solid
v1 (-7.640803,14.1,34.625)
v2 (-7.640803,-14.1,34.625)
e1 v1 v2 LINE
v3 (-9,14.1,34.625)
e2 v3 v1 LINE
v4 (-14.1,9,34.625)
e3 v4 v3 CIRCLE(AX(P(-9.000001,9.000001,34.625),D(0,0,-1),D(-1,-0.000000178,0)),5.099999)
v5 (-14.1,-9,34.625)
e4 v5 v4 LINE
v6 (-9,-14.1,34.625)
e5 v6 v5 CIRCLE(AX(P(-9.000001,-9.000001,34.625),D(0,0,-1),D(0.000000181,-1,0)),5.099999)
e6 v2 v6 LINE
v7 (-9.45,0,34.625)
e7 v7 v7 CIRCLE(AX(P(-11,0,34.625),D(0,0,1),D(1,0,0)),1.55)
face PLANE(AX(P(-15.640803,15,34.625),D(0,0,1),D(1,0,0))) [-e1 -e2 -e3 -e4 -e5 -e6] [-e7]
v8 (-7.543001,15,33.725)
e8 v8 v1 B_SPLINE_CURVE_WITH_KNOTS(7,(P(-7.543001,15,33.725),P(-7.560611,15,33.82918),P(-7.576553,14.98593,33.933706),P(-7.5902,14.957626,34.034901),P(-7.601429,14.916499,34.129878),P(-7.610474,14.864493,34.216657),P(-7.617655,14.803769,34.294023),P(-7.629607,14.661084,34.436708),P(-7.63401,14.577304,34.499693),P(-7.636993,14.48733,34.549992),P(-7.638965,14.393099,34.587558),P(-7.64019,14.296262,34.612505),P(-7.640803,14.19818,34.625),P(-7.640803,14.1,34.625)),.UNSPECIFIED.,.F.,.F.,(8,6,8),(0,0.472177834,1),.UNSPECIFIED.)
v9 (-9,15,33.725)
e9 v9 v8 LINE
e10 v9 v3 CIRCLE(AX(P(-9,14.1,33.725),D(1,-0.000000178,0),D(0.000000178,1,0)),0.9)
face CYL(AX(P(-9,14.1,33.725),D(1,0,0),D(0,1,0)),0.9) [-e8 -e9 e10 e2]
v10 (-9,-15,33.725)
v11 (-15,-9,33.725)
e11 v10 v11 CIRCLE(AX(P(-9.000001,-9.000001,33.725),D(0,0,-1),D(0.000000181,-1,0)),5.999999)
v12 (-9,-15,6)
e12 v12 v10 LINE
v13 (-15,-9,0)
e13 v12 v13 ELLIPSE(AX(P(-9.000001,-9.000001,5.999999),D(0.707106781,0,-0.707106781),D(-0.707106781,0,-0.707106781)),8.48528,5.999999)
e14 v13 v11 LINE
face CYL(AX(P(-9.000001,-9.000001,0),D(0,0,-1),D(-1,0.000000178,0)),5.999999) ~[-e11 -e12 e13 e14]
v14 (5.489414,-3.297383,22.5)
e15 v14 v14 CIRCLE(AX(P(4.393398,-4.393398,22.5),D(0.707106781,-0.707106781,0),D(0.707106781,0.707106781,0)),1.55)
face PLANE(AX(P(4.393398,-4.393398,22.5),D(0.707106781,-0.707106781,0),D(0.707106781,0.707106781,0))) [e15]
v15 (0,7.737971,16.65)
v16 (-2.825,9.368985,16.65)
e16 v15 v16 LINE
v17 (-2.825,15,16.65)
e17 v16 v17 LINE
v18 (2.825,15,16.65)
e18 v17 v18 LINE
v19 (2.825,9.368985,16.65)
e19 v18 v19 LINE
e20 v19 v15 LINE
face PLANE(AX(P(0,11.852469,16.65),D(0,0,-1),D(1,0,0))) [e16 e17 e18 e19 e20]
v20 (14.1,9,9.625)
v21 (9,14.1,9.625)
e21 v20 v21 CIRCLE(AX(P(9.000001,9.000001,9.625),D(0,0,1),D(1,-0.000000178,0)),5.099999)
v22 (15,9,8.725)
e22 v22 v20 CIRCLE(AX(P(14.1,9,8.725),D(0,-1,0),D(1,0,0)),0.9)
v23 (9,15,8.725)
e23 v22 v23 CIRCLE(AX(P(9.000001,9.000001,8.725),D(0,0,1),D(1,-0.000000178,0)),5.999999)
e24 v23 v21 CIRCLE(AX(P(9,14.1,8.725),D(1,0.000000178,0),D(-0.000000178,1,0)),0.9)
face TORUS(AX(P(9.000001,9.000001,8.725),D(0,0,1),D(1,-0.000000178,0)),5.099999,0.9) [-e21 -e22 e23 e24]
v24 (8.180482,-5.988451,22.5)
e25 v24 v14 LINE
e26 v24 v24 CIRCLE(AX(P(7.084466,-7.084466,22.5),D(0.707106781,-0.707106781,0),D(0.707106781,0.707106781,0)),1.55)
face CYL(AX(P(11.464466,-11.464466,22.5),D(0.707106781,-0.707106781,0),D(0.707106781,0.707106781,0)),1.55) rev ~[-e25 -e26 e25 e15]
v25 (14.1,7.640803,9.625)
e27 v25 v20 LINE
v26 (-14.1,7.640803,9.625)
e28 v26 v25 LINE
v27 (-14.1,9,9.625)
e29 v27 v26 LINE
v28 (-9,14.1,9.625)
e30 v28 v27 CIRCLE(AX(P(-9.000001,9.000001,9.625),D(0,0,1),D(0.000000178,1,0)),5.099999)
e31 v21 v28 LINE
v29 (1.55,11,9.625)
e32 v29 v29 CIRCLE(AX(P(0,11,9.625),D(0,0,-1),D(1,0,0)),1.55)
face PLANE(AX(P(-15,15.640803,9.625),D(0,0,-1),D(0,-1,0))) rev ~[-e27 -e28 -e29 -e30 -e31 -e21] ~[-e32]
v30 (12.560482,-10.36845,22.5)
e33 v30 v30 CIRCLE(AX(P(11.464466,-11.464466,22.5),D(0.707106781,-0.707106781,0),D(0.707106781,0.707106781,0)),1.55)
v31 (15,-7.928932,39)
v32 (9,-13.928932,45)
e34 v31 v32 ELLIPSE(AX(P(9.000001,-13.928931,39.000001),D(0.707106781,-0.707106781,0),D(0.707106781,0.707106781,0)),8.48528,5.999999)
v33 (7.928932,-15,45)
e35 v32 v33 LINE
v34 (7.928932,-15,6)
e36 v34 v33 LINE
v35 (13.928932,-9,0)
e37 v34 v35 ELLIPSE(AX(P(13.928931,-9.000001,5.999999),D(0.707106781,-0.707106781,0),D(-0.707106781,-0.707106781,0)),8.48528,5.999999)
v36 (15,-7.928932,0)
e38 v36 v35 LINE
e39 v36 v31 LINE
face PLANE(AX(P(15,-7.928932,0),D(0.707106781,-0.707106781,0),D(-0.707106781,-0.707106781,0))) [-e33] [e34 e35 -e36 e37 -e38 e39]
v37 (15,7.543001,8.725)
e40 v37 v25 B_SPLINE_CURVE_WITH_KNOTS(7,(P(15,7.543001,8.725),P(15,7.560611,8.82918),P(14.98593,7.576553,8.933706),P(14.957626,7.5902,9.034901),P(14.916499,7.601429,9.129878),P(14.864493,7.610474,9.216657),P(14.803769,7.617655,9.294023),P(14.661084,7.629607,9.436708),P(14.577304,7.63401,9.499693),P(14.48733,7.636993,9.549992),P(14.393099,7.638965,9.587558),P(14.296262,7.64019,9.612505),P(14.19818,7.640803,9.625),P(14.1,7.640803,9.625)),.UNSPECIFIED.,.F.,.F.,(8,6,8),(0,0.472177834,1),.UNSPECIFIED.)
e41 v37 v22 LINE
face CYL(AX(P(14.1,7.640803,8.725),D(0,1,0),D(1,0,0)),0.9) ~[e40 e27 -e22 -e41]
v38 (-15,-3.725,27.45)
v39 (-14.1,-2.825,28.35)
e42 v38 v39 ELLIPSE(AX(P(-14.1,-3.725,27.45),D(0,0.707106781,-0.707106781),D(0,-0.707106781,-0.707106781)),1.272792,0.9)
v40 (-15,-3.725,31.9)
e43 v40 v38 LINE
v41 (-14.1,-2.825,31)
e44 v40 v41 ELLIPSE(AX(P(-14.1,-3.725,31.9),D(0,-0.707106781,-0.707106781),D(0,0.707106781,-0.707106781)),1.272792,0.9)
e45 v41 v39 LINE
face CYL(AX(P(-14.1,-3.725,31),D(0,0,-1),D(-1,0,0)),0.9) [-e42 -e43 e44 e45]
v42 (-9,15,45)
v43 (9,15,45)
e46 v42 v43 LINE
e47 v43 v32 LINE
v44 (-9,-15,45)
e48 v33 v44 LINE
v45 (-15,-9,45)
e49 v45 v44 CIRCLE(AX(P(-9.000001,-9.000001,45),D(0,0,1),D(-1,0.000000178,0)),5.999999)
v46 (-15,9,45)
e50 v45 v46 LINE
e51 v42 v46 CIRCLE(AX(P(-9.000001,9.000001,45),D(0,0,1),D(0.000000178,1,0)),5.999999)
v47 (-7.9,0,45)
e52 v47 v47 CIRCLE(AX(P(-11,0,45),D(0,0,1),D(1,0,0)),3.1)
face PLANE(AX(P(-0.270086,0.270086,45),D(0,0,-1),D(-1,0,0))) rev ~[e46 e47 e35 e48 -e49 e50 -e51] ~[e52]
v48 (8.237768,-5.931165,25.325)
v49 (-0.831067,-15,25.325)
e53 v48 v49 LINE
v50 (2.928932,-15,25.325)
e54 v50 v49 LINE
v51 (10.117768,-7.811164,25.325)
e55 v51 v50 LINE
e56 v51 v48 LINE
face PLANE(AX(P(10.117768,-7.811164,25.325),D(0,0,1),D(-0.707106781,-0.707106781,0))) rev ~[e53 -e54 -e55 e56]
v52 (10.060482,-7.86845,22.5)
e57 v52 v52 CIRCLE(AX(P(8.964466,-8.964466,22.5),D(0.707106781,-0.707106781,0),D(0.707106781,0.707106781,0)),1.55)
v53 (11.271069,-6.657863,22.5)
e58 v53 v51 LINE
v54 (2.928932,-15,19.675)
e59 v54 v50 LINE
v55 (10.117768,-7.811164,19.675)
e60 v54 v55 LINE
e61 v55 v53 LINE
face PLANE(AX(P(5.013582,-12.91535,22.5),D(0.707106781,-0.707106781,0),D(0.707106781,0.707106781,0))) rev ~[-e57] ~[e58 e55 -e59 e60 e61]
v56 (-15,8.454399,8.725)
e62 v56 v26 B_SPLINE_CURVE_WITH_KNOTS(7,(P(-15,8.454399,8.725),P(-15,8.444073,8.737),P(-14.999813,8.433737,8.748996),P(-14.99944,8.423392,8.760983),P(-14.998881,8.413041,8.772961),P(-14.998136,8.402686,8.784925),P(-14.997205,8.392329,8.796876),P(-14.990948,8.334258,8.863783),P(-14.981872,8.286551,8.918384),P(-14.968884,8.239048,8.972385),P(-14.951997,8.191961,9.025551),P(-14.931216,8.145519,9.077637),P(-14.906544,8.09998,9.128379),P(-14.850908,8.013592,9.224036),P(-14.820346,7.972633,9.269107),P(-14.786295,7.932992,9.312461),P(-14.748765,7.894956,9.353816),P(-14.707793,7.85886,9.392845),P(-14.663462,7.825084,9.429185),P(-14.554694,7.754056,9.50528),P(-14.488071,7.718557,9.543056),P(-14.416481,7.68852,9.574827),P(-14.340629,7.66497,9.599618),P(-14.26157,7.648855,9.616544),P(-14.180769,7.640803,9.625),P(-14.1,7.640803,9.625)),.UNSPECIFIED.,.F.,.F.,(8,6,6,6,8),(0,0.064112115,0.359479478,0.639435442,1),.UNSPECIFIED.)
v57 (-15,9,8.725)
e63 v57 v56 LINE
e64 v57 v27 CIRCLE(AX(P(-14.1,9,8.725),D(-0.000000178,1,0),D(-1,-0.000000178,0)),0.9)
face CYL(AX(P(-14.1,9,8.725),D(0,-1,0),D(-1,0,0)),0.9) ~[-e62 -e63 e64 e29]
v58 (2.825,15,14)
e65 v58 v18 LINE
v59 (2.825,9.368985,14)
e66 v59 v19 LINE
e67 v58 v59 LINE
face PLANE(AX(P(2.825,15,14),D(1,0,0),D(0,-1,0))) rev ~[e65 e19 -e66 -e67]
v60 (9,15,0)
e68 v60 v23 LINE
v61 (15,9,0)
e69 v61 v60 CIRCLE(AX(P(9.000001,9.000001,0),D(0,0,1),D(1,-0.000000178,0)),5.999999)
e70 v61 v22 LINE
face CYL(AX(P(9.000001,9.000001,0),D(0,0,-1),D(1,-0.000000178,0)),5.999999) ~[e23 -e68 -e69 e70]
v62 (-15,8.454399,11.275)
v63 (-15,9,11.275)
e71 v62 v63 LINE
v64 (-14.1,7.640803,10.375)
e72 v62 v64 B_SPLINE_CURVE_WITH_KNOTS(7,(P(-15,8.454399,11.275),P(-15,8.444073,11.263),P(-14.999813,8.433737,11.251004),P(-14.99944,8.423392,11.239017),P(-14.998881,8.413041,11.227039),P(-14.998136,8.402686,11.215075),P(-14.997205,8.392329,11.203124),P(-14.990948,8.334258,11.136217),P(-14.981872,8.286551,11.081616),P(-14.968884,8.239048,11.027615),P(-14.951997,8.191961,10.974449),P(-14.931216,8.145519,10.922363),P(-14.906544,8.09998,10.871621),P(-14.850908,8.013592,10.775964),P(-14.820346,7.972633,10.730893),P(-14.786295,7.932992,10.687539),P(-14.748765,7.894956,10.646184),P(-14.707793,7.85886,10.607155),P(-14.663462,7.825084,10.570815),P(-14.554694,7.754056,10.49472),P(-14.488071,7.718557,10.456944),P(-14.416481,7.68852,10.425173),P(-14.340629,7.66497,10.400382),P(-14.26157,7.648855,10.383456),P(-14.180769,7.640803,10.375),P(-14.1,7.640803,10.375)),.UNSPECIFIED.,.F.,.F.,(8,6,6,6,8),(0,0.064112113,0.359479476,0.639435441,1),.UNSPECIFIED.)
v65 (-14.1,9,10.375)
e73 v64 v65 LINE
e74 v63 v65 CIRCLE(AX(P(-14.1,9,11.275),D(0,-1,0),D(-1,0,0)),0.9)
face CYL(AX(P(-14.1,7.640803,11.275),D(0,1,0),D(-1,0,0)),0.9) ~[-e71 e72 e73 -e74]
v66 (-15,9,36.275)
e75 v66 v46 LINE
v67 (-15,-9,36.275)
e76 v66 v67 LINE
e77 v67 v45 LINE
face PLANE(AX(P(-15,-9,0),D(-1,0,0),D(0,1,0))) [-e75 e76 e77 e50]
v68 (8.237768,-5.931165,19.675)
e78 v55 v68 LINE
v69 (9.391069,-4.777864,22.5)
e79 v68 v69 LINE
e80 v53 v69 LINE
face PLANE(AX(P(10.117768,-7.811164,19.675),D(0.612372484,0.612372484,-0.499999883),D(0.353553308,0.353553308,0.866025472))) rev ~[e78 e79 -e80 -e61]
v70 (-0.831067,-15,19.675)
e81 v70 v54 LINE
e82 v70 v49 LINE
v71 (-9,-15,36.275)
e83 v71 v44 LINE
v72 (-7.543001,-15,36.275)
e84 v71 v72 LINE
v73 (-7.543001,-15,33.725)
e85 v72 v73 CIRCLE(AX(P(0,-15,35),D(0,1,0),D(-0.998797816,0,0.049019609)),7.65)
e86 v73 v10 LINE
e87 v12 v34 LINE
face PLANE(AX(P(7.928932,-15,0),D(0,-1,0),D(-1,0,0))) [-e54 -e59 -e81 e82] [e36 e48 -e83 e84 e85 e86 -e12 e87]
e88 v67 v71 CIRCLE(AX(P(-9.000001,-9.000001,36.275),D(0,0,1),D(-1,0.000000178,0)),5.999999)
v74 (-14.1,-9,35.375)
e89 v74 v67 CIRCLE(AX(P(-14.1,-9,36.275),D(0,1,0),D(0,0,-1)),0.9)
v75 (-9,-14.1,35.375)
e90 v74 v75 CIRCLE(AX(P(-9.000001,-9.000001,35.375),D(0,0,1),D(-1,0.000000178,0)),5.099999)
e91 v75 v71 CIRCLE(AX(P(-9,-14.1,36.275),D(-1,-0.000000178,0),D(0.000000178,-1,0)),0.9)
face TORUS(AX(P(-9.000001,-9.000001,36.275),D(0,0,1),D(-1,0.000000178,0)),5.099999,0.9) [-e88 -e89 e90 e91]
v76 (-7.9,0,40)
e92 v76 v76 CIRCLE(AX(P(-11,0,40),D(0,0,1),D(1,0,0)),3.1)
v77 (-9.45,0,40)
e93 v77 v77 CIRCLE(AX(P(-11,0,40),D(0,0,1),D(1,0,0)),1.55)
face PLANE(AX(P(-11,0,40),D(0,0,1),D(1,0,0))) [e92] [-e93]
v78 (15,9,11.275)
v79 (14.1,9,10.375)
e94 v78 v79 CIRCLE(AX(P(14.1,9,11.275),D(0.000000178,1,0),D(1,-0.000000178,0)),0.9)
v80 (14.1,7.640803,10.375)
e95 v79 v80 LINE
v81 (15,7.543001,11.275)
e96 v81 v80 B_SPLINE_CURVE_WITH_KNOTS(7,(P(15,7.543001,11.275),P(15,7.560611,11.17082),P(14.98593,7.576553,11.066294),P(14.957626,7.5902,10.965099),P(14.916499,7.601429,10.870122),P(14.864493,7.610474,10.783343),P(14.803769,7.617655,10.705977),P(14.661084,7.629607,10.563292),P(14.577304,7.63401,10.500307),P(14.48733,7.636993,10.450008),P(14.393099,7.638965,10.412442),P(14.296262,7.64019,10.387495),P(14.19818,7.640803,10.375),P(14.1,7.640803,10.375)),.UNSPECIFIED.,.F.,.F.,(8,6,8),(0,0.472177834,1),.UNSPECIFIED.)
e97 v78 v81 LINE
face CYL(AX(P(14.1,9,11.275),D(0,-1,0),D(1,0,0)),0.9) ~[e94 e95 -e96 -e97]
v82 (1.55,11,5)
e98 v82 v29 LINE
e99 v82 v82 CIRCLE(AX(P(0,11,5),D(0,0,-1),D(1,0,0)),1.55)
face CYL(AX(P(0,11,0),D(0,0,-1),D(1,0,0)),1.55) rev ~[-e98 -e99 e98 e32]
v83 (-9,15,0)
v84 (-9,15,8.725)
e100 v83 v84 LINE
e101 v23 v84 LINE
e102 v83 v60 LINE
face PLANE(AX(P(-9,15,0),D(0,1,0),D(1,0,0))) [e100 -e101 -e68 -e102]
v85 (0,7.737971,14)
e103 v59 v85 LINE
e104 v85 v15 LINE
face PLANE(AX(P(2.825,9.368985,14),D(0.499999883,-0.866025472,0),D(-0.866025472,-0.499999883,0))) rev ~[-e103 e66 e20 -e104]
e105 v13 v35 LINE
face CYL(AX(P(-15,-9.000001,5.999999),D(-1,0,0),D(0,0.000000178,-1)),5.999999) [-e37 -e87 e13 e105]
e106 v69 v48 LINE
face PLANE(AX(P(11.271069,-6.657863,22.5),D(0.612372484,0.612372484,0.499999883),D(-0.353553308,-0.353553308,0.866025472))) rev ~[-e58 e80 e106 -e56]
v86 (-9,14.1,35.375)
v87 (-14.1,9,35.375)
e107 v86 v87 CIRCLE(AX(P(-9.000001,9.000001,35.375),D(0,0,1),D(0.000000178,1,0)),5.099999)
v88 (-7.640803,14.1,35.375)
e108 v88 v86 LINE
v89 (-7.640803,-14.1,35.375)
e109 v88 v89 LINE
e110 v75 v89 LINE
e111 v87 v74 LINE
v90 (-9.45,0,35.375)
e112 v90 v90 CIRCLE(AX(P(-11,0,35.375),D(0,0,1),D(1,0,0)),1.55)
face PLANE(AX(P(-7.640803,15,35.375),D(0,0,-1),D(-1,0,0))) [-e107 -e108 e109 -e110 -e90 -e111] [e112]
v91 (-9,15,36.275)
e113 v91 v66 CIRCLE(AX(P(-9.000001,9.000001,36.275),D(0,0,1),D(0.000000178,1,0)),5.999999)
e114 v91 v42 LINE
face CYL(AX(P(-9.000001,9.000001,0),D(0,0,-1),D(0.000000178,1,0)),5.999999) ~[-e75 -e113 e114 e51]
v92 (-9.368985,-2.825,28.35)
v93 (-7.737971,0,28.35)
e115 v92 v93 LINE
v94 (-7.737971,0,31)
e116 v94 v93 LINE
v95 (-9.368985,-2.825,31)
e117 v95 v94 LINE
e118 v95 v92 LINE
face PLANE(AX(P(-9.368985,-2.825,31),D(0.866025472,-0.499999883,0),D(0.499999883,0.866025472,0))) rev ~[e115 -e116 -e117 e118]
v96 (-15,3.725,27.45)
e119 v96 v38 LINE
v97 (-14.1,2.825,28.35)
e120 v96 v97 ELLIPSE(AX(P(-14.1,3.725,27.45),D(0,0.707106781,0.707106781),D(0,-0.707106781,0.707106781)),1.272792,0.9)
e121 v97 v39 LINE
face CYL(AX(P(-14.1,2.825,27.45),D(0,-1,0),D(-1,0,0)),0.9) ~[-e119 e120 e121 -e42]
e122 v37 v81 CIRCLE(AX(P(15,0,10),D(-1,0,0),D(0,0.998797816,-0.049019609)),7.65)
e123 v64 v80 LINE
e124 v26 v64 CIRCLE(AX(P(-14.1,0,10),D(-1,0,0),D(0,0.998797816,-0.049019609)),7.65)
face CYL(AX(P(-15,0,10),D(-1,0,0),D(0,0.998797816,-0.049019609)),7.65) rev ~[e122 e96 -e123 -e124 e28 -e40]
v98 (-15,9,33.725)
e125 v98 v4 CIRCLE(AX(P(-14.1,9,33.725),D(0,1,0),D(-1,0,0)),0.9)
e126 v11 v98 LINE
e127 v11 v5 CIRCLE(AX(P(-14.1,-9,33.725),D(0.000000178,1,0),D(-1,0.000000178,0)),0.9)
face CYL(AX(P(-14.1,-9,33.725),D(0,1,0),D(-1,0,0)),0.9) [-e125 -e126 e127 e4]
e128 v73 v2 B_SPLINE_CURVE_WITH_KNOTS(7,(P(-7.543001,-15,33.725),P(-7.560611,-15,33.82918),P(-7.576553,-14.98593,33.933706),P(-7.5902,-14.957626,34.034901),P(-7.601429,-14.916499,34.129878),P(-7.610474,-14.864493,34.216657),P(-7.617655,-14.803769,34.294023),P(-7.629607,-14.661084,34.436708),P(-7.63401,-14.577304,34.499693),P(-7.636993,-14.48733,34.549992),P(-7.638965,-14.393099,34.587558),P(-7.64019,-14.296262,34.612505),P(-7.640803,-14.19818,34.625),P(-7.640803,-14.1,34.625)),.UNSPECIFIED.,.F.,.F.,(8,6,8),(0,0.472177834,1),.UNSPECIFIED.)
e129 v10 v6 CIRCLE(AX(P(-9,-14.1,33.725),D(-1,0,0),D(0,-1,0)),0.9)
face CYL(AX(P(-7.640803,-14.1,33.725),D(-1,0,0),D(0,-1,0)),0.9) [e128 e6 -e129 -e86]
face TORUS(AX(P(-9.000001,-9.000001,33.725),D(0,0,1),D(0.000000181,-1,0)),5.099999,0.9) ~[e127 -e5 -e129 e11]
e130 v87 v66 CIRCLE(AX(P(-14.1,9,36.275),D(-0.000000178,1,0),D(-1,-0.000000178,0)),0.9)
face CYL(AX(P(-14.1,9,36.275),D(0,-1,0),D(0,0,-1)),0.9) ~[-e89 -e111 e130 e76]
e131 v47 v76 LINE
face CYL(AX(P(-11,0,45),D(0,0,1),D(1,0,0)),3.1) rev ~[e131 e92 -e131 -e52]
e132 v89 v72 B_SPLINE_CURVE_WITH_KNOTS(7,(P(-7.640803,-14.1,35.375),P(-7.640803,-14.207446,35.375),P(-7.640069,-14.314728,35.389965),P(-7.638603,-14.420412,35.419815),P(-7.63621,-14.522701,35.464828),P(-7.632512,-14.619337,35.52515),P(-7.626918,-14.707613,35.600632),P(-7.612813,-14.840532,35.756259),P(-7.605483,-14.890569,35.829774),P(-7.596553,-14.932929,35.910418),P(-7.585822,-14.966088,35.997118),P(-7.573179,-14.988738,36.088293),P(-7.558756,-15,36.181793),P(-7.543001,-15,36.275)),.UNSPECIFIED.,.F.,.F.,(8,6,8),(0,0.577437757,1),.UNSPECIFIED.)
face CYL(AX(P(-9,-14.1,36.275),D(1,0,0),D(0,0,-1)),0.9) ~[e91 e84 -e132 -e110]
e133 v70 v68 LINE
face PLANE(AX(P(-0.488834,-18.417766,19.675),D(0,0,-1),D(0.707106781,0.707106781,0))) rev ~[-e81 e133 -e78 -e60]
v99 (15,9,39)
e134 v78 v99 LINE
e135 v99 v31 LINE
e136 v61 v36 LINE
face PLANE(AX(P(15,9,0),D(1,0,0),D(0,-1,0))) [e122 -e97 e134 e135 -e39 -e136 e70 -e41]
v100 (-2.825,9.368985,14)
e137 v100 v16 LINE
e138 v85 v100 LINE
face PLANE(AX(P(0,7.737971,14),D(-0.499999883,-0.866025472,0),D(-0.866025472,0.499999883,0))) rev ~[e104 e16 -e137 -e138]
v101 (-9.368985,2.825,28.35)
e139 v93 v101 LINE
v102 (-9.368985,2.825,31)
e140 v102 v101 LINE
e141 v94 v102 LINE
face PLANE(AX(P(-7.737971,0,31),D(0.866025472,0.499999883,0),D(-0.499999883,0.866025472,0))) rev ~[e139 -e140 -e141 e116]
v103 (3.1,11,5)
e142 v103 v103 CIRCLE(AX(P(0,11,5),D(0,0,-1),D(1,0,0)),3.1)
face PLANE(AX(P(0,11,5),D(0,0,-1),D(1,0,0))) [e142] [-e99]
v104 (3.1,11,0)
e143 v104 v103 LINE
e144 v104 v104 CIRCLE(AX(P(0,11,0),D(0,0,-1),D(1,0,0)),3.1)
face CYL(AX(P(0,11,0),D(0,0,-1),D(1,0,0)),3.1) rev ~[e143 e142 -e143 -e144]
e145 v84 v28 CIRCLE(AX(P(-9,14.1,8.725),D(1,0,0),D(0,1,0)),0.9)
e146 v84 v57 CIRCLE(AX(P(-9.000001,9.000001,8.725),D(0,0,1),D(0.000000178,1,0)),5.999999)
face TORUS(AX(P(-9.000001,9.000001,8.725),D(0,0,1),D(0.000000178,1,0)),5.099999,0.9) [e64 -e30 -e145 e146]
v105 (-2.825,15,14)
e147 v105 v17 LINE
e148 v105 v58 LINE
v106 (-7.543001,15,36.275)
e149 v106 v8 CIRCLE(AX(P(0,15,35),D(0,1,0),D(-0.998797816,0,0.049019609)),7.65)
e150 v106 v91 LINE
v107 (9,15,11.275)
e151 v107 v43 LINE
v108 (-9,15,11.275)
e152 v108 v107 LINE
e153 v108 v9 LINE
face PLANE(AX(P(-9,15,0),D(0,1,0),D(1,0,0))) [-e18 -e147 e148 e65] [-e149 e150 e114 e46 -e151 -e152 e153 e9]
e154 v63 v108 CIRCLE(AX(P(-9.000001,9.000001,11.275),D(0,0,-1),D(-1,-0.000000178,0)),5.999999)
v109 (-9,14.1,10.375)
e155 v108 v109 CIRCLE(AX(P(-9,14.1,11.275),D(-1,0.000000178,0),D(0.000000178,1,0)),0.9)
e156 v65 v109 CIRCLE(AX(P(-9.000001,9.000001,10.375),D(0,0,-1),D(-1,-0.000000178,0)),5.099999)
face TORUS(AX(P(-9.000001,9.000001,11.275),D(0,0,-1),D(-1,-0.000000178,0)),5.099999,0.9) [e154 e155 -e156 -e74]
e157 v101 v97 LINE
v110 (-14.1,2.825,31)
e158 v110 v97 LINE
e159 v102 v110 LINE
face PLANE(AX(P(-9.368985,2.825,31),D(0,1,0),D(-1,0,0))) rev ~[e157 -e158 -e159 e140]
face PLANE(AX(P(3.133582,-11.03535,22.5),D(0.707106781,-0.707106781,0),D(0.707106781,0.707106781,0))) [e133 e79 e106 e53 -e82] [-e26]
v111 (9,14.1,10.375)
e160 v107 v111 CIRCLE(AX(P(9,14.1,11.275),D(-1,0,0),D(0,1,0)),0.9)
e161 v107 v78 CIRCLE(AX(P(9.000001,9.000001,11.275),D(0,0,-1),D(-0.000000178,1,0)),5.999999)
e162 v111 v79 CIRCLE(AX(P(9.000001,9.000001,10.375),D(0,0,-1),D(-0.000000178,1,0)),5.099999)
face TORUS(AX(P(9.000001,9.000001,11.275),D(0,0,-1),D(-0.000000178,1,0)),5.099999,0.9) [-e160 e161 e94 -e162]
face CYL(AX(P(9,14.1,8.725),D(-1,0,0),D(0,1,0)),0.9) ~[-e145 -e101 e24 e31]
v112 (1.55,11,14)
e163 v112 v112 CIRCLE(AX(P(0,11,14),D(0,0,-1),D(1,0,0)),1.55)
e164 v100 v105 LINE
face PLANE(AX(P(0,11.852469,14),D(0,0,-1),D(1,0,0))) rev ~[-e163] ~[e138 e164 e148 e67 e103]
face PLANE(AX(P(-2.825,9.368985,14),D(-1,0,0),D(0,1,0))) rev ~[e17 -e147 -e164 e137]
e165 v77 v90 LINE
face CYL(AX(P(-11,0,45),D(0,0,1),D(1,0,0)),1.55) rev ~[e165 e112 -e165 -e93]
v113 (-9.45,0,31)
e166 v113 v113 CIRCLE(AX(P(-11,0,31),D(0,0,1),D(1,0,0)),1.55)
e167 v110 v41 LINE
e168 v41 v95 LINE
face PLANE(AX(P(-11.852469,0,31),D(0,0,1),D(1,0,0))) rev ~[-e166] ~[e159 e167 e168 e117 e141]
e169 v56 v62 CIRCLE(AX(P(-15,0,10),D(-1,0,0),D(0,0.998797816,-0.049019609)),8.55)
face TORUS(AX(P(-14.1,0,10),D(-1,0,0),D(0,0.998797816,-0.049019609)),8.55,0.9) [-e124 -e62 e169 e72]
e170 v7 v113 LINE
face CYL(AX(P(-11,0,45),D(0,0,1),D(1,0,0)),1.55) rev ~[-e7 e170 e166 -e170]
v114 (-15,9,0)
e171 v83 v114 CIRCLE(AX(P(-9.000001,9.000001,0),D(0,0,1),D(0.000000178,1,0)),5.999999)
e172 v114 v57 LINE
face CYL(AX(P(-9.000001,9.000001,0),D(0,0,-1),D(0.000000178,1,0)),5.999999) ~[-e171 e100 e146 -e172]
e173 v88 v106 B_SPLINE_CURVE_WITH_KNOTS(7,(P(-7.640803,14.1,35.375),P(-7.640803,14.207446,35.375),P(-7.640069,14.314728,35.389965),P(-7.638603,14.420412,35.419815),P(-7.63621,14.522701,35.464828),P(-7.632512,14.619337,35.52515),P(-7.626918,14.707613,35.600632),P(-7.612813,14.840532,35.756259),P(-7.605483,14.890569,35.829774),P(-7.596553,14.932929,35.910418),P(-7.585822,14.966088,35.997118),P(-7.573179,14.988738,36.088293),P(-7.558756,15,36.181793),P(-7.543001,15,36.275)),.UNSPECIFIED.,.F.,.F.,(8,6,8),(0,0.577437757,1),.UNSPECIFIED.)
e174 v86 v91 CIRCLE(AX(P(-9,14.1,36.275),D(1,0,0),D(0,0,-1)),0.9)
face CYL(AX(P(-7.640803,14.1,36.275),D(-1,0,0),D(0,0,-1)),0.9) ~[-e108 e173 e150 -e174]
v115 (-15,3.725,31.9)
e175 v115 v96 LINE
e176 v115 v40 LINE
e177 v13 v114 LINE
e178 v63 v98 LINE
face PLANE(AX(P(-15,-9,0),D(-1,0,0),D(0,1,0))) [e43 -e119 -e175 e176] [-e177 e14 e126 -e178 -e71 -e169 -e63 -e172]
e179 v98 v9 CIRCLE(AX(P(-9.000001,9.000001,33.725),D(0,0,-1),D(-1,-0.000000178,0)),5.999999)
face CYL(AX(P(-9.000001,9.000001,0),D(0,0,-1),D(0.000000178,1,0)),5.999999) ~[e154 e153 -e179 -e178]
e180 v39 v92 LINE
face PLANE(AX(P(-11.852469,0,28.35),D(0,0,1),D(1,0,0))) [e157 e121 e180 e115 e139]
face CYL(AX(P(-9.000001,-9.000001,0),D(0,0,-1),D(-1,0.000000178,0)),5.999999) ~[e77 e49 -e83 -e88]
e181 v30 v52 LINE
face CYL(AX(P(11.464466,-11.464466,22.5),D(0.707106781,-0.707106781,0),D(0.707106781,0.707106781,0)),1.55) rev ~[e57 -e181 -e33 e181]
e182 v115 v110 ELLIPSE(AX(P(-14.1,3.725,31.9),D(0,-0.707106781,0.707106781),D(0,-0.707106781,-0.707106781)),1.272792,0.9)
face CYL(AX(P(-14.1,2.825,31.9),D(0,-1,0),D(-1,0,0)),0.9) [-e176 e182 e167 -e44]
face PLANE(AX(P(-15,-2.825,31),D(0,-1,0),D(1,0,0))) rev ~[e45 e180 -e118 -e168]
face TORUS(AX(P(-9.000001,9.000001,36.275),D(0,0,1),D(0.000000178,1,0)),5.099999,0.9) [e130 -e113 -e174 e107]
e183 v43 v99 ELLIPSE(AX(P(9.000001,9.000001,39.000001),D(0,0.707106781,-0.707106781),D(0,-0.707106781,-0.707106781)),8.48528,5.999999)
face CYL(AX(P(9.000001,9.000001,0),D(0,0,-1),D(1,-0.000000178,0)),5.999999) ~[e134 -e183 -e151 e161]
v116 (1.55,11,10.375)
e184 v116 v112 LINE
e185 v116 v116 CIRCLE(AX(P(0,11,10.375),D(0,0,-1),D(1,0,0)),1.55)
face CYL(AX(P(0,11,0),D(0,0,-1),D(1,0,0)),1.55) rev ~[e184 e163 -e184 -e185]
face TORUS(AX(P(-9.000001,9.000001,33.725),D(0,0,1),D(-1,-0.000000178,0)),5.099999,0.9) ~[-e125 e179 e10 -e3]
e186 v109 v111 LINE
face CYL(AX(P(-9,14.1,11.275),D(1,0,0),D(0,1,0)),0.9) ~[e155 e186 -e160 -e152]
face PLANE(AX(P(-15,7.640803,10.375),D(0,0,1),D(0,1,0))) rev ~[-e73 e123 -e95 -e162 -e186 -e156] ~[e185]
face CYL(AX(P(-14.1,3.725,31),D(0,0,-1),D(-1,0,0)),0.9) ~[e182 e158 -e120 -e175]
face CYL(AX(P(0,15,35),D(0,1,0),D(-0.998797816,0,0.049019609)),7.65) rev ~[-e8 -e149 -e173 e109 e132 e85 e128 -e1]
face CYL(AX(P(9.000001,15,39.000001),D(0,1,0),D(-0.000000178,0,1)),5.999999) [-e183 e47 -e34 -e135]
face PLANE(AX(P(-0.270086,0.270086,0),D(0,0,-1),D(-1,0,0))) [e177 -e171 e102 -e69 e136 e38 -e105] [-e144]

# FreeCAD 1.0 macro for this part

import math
import FreeCAD as App
import Part
import Sketcher
from FreeCAD import Vector
Q = App.Units.Quantity


def edges_at(feature, points):
    """Names of the edges that pass closest to the given points."""
    edges = feature.Shape.Edges
    near = lambda p: min(range(len(edges)), key=lambda i: edges[i].distToShape(Part.Vertex(*p))[0])
    return sorted({f"Edge{near(p) + 1}" for p in points})

doc = App.newDocument("Part")
params = doc.addObject("Spreadsheet::Sheet", "Params")
for row, (alias, value) in enumerate([
    ("sketch1_width", "15 mm"),
    ("sketch1_height", "5.65 mm"),
    ("pad1_length", "2.658721 mm"),
    ("sketch2_width", "5.65 mm"),
    ("pad2_length", "2.65 mm"),
    ("sketch3_height", "5.65 mm"),
    ("pad3_length", "2.65 mm"),
    ("sketch4_radius", "5.999999 mm"),
    ("sketch4_width", "18 mm"),
    ("sketch4_length", "10 mm"),
    ("pad4_length", "45 mm"),
    ("sketch5_radius", "5.999999 mm"),
    ("sketch5_width", "8 mm"),
    ("sketch5_radius2", "7.65 mm"),
    ("sketch5_height", "0.75 mm"),
    ("sketch6_radius", "5.999999 mm"),
    ("sketch6_width", "8 mm"),
    ("sketch6_radius2", "7.65 mm"),
    ("sketch6_height", "0.75 mm"),
    ("sketch7_diameter", "3.1 mm"),
    ("pocket3_length", "16 mm"),
    ("sketch8_diameter", "6.2 mm"),
    ("pocket4_length", "5 mm"),
    ("sketch9_diameter", "3.1 mm"),
    ("pocket5_length", "16 mm"),
    ("sketch10_diameter", "6.2 mm"),
    ("pocket6_length", "5 mm"),
    ("sketch11_diameter", "3.1 mm"),
    ("pocket7_length", "10 mm"),
    ("fillet_radius", "0.9 mm"),
], start=1):
    params.set(f"A{row}", alias)
    params.set(f"B{row}", "=" + value)
    params.setAlias(f"B{row}", alias)

body = doc.addObject("PartDesign::Body", "Body")

sketch1 = body.newObject("Sketcher::SketchObject", "Sketch")
sketch1.AttachmentSupport = (doc.getObject("XY_Plane"), [""])
sketch1.MapMode = "FlatFace"
sketch1.addGeometry(Part.LineSegment(Vector(3.3, 22.5, 0), Vector(1.6, 25.3, 0)), False)
sketch1.addGeometry(Part.LineSegment(Vector(1.6, 25.3, 0), Vector(-13.4, 25.3, 0)), False)
sketch1.addGeometry(Part.LineSegment(Vector(-13.4, 25.3, 0), Vector(-13.4, 19.7, 0)), False)
sketch1.addGeometry(Part.LineSegment(Vector(-13.4, 19.7, 0), Vector(1.6, 19.7, 0)), False)
sketch1.addGeometry(Part.LineSegment(Vector(1.6, 19.7, 0), Vector(3.3, 22.5, 0)), False)
sketch1.addConstraint(Sketcher.Constraint("Coincident", 0, 2, 1, 1))
sketch1.addConstraint(Sketcher.Constraint("Coincident", 1, 2, 2, 1))
sketch1.addConstraint(Sketcher.Constraint("Coincident", 2, 2, 3, 1))
sketch1.addConstraint(Sketcher.Constraint("Coincident", 3, 2, 4, 1))
sketch1.addConstraint(Sketcher.Constraint("Coincident", 4, 2, 0, 1))
sketch1.addConstraint(Sketcher.Constraint("Horizontal", 1))
sketch1.addConstraint(Sketcher.Constraint("Vertical", 2))
sketch1.addConstraint(Sketcher.Constraint("Horizontal", 3))
sketch1.addConstraint(Sketcher.Constraint("Vertical", 0, 2, 3, 2))
sketch1.addConstraint(Sketcher.Constraint("Equal", 0, 4))
sketch1.addConstraint(Sketcher.Constraint("DistanceX", 1, 2, 1, 1, Q("15 mm")))
sketch1.addConstraint(Sketcher.Constraint("Angle", 0, Q("119.999992 deg")))
sketch1.addConstraint(Sketcher.Constraint("DistanceY", 2, 2, 2, 1, Q("5.65 mm")))
sketch1.addConstraint(Sketcher.Constraint("DistanceY", -1, 1, 4, 2, Q("22.5 mm")))
sketch1.addConstraint(Sketcher.Constraint("DistanceX", -1, 1, 4, 2, Q("3.262029 mm")))
sketch1.setExpression("Constraints[10]", "Params.sketch1_width")
sketch1.setExpression("Constraints[12]", "Params.sketch1_height")
pad1 = body.newObject("PartDesign::Pad", "Pad")
pad1.Profile = sketch1
pad1.setExpression("Length", "Params.pad1_length")
pad1.Reversed = True
body2 = doc.addObject("PartDesign::Body", "Body001")
doc.recompute()

body.Placement = App.Placement(Vector(0, 0, 0), App.Rotation(Vector(1, 0, 0), 90))
boolean = body2.newObject("PartDesign::Boolean", "Boolean")
boolean.Type = "Fuse"
boolean.addObjects([body])
body3 = doc.addObject("PartDesign::Body", "Body002")
doc.recompute()

body2.Placement = App.Placement(Vector(11.464466, -11.464466, 0), App.Rotation(Vector(0, 0, 1), 45))
boolean2 = body3.newObject("PartDesign::Boolean", "Boolean001")
boolean2.Type = "Fuse"
boolean2.addObjects([body2])
body4 = doc.addObject("PartDesign::Body", "Body003")
doc.recompute()

body3.Placement = App.Placement(Vector(-2.5, 2.5, 0), App.Rotation(Vector(0, 0, 1), 0))
boolean3 = body4.newObject("PartDesign::Boolean", "Boolean002")
boolean3.Type = "Fuse"
boolean3.addObjects([body3])
body5 = doc.addObject("PartDesign::Body", "Body004")

sketch2 = body5.newObject("Sketcher::SketchObject", "Sketch001")
sketch2.AttachmentSupport = (doc.getObject("XY_Plane004"), [""])
sketch2.MapMode = "FlatFace"
sketch2.addGeometry(Part.LineSegment(Vector(0, 7.7, 0), Vector(-2.8, 9.4, 0)), False)
sketch2.addGeometry(Part.LineSegment(Vector(-2.8, 9.4, 0), Vector(-2.8, 15, 0)), False)
sketch2.addGeometry(Part.LineSegment(Vector(-2.8, 15, 0), Vector(2.8, 15, 0)), False)
sketch2.addGeometry(Part.LineSegment(Vector(2.8, 15, 0), Vector(2.8, 9.4, 0)), False)
sketch2.addGeometry(Part.LineSegment(Vector(2.8, 9.4, 0), Vector(0, 7.7, 0)), False)
sketch2.addConstraint(Sketcher.Constraint("Coincident", 0, 2, 1, 1))
sketch2.addConstraint(Sketcher.Constraint("Coincident", 1, 2, 2, 1))
sketch2.addConstraint(Sketcher.Constraint("Coincident", 2, 2, 3, 1))
sketch2.addConstraint(Sketcher.Constraint("Coincident", 3, 2, 4, 1))
sketch2.addConstraint(Sketcher.Constraint("Coincident", 4, 2, 0, 1))
sketch2.addConstraint(Sketcher.Constraint("Vertical", 1))
sketch2.addConstraint(Sketcher.Constraint("Horizontal", 2))
sketch2.addConstraint(Sketcher.Constraint("Vertical", 3))
sketch2.addConstraint(Sketcher.Constraint("Symmetric", 0, 2, 3, 2, -2))
sketch2.addConstraint(Sketcher.Constraint("PointOnObject", 4, 2, -2))
sketch2.addConstraint(Sketcher.Constraint("Angle", 0, Q("150.000008 deg")))
sketch2.addConstraint(Sketcher.Constraint("DistanceY", -1, 1, 1, 2, Q("15 mm")))
sketch2.addConstraint(Sketcher.Constraint("DistanceX", 2, 1, 2, 2, Q("5.65 mm")))
sketch2.addConstraint(Sketcher.Constraint("DistanceY", 1, 1, 1, 2, Q("5.631015 mm")))
sketch2.setExpression("Constraints[12]", "Params.sketch2_width")
pad2 = body5.newObject("PartDesign::Pad", "Pad001")
pad2.Profile = sketch2
pad2.setExpression("Length", "Params.pad2_length")
body6 = doc.addObject("PartDesign::Body", "Body005")
doc.recompute()

body5.Placement = App.Placement(Vector(0, 0, 14), App.Rotation(Vector(0, 0, 1), 0))
boolean4 = body6.newObject("PartDesign::Boolean", "Boolean003")
boolean4.Type = "Fuse"
boolean4.addObjects([body5])
body7 = doc.addObject("PartDesign::Body", "Body006")

sketch3 = body7.newObject("Sketcher::SketchObject", "Sketch002")
sketch3.AttachmentSupport = (doc.getObject("XY_Plane006"), [""])
sketch3.MapMode = "FlatFace"
sketch3.AttachmentOffset = App.Placement(Vector(0, 0, 45), App.Rotation())
sketch3.addGeometry(Part.LineSegment(Vector(-7.7, 0, 0), Vector(-9.4, 2.8, 0)), False)
sketch3.addGeometry(Part.LineSegment(Vector(-9.4, 2.8, 0), Vector(-15, 2.8, 0)), False)
sketch3.addGeometry(Part.LineSegment(Vector(-15, 2.8, 0), Vector(-15, -2.8, 0)), False)
sketch3.addGeometry(Part.LineSegment(Vector(-15, -2.8, 0), Vector(-9.4, -2.8, 0)), False)
sketch3.addGeometry(Part.LineSegment(Vector(-9.4, -2.8, 0), Vector(-7.7, 0, 0)), False)
sketch3.addConstraint(Sketcher.Constraint("Coincident", 0, 2, 1, 1))
sketch3.addConstraint(Sketcher.Constraint("Coincident", 1, 2, 2, 1))
sketch3.addConstraint(Sketcher.Constraint("Coincident", 2, 2, 3, 1))
sketch3.addConstraint(Sketcher.Constraint("Coincident", 3, 2, 4, 1))
sketch3.addConstraint(Sketcher.Constraint("Coincident", 4, 2, 0, 1))
sketch3.addConstraint(Sketcher.Constraint("Horizontal", 1))
sketch3.addConstraint(Sketcher.Constraint("Vertical", 2))
sketch3.addConstraint(Sketcher.Constraint("Horizontal", 3))
sketch3.addConstraint(Sketcher.Constraint("Symmetric", 0, 2, 3, 2, -1))
sketch3.addConstraint(Sketcher.Constraint("PointOnObject", 4, 2, -1))
sketch3.addConstraint(Sketcher.Constraint("Angle", 0, Q("119.999992 deg")))
sketch3.addConstraint(Sketcher.Constraint("DistanceX", 1, 2, -1, 1, Q("15 mm")))
sketch3.addConstraint(Sketcher.Constraint("DistanceY", 2, 2, 2, 1, Q("5.65 mm")))
sketch3.addConstraint(Sketcher.Constraint("DistanceX", 1, 2, 1, 1, Q("5.631015 mm")))
sketch3.setExpression("Constraints[12]", "Params.sketch3_height")
pad3 = body7.newObject("PartDesign::Pad", "Pad002")
pad3.Profile = sketch3
pad3.setExpression("Length", "Params.pad3_length")
pad3.Reversed = True
body8 = doc.addObject("PartDesign::Body", "Body007")
doc.recompute()

body7.Placement = App.Placement(Vector(0, 0, -14), App.Rotation(Vector(0, 0, 1), 0))
boolean5 = body8.newObject("PartDesign::Boolean", "Boolean004")
boolean5.Type = "Fuse"
boolean5.addObjects([body7])
body9 = doc.addObject("PartDesign::Body", "Body008")

sketch4 = body9.newObject("Sketcher::SketchObject", "Sketch003")
sketch4.AttachmentSupport = (doc.getObject("XY_Plane008"), [""])
sketch4.MapMode = "FlatFace"
sketch4.addGeometry(Part.LineSegment(Vector(8, -15, 0), Vector(15, -8, 0)), False)
sketch4.addGeometry(Part.LineSegment(Vector(15, -8, 0), Vector(15, 9, 0)), False)
sketch4.addGeometry(Part.ArcOfCircle(Part.Circle(Vector(9, 9, 0), Vector(0, 0, 1), 6), math.radians(0), math.radians(90)), False)
sketch4.addGeometry(Part.LineSegment(Vector(9, 15, 0), Vector(-9, 15, 0)), False)
sketch4.addGeometry(Part.ArcOfCircle(Part.Circle(Vector(-9, 9, 0), Vector(0, 0, 1), 6), math.radians(90), math.radians(180)), False)
sketch4.addGeometry(Part.LineSegment(Vector(-15, 9, 0), Vector(-15, -9, 0)), False)
sketch4.addGeometry(Part.ArcOfCircle(Part.Circle(Vector(-9, -9, 0), Vector(0, 0, 1), 6), math.radians(180), math.radians(270)), False)
sketch4.addGeometry(Part.LineSegment(Vector(-9, -15, 0), Vector(8, -15, 0)), False)
sketch4.addConstraint(Sketcher.Constraint("Coincident", 0, 2, 1, 1))
sketch4.addConstraint(Sketcher.Constraint("Tangent", 1, 2, 2, 1))
sketch4.addConstraint(Sketcher.Constraint("Tangent", 2, 2, 3, 1))
sketch4.addConstraint(Sketcher.Constraint("Tangent", 3, 2, 4, 1))
sketch4.addConstraint(Sketcher.Constraint("Tangent", 4, 2, 5, 1))
sketch4.addConstraint(Sketcher.Constraint("Tangent", 5, 2, 6, 1))
sketch4.addConstraint(Sketcher.Constraint("Tangent", 6, 2, 7, 1))
sketch4.addConstraint(Sketcher.Constraint("Coincident", 7, 2, 0, 1))
sketch4.addConstraint(Sketcher.Constraint("Vertical", 1))
sketch4.addConstraint(Sketcher.Constraint("Horizontal", 3))
sketch4.addConstraint(Sketcher.Constraint("Vertical", 5))
sketch4.addConstraint(Sketcher.Constraint("Horizontal", 7))
sketch4.addConstraint(Sketcher.Constraint("Equal", 2, 4))
sketch4.addConstraint(Sketcher.Constraint("Equal", 4, 6))
sketch4.addConstraint(Sketcher.Constraint("Symmetric", 2, 3, 6, 3, -1, 1))
sketch4.addConstraint(Sketcher.Constraint("Equal", 7, 1))
sketch4.addConstraint(Sketcher.Constraint("Equal", 3, 5))
sketch4.addConstraint(Sketcher.Constraint("Radius", 2, Q("5.999999 mm")))
sketch4.addConstraint(Sketcher.Constraint("DistanceX", 3, 2, 3, 1, Q("18 mm")))
sketch4.addConstraint(Sketcher.Constraint("Distance", 0, Q("10 mm")))
sketch4.setExpression("Constraints[17]", "Params.sketch4_radius")
sketch4.setExpression("Constraints[18]", "Params.sketch4_width")
sketch4.setExpression("Constraints[19]", "Params.sketch4_length")
pad4 = body9.newObject("PartDesign::Pad", "Pad003")
pad4.Profile = sketch4
pad4.setExpression("Length", "Params.pad4_length")

sketch5 = body9.newObject("Sketcher::SketchObject", "Sketch004")
sketch5.AttachmentSupport = (doc.getObject("YZ_Plane008"), [""])
sketch5.MapMode = "FlatFace"
sketch5.AttachmentOffset = App.Placement(Vector(0, 0, -15), App.Rotation())
sketch5.addGeometry(Part.LineSegment(Vector(-9, 0, 0), Vector(-15, 0, 0)), False)
sketch5.addGeometry(Part.LineSegment(Vector(-15, 0, 0), Vector(-15, 6, 0)), False)
sketch5.addGeometry(Part.ArcOfCircle(Part.Circle(Vector(-9, 6, 0), Vector(0, 0, 1), 6), math.radians(180), math.radians(270)), False)
sketch5.addGeometry(Part.ArcOfCircle(Part.Circle(Vector(0, 10, 0), Vector(0, 0, 1), 7.6), math.radians(3), math.radians(357)), False)
sketch5.addGeometry(Part.LineSegment(Vector(7.6, 10.4, 0), Vector(15.6, 10.4, 0)), False)
sketch5.addGeometry(Part.LineSegment(Vector(15.6, 10.4, 0), Vector(15.6, 9.6, 0)), False)
sketch5.addGeometry(Part.LineSegment(Vector(15.6, 9.6, 0), Vector(7.6, 9.6, 0)), False)
sketch5.addConstraint(Sketcher.Constraint("Coincident", 0, 2, 1, 1))
sketch5.addConstraint(Sketcher.Constraint("Tangent", 1, 2, 2, 1))
sketch5.addConstraint(Sketcher.Constraint("Tangent", 2, 2, 0, 1))
sketch5.addConstraint(Sketcher.Constraint("Coincident", 3, 1, 4, 1))
sketch5.addConstraint(Sketcher.Constraint("Coincident", 4, 2, 5, 1))
sketch5.addConstraint(Sketcher.Constraint("Coincident", 5, 2, 6, 1))
sketch5.addConstraint(Sketcher.Constraint("Coincident", 6, 2, 3, 2))
sketch5.addConstraint(Sketcher.Constraint("Horizontal", 0))
sketch5.addConstraint(Sketcher.Constraint("Vertical", 1))
sketch5.addConstraint(Sketcher.Constraint("Horizontal", 4))
sketch5.addConstraint(Sketcher.Constraint("Vertical", 5))
sketch5.addConstraint(Sketcher.Constraint("Horizontal", 6))
sketch5.addConstraint(Sketcher.Constraint("PointOnObject", 3, 3, -2))
sketch5.addConstraint(Sketcher.Constraint("PointOnObject", 0, 2, -1))
sketch5.addConstraint(Sketcher.Constraint("Vertical", 3, 1, 6, 2))
sketch5.addConstraint(Sketcher.Constraint("Radius", 2, Q("5.999999 mm")))
sketch5.addConstraint(Sketcher.Constraint("DistanceX", 4, 1, 4, 2, Q("8 mm")))
sketch5.addConstraint(Sketcher.Constraint("Radius", 3, Q("7.65 mm")))
sketch5.addConstraint(Sketcher.Constraint("DistanceX", 2, 3, -1, 1, Q("9.000001 mm")))
sketch5.addConstraint(Sketcher.Constraint("DistanceY", -1, 1, 3, 3, Q("10 mm")))
sketch5.addConstraint(Sketcher.Constraint("DistanceY", 5, 2, 5, 1, Q("0.75 mm")))
sketch5.setExpression("Constraints[15]", "Params.sketch5_radius")
sketch5.setExpression("Constraints[16]", "Params.sketch5_width")
sketch5.setExpression("Constraints[17]", "Params.sketch5_radius2")
sketch5.setExpression("Constraints[20]", "Params.sketch5_height")
pocket1 = body9.newObject("PartDesign::Pocket", "Pocket")
pocket1.Profile = sketch5
pocket1.Type = "ThroughAll"
pocket1.Reversed = True

sketch6 = body9.newObject("Sketcher::SketchObject", "Sketch005")
sketch6.AttachmentSupport = (doc.getObject("XZ_Plane008"), [""])
sketch6.MapMode = "FlatFace"
sketch6.AttachmentOffset = App.Placement(Vector(0, 0, -15), App.Rotation())
sketch6.addGeometry(Part.ArcOfCircle(Part.Circle(Vector(9, 39, 0), Vector(0, 0, 1), 6), math.radians(0), math.radians(90)), False)
sketch6.addGeometry(Part.LineSegment(Vector(9, 45, 0), Vector(15, 45, 0)), False)
sketch6.addGeometry(Part.LineSegment(Vector(15, 45, 0), Vector(15, 39, 0)), False)
sketch6.addGeometry(Part.ArcOfCircle(Part.Circle(Vector(0, 35, 0), Vector(0, 0, 1), 7.6), math.radians(-177), math.radians(177)), False)
sketch6.addGeometry(Part.LineSegment(Vector(-7.6, 34.6, 0), Vector(-15.6, 34.6, 0)), False)
sketch6.addGeometry(Part.LineSegment(Vector(-15.6, 34.6, 0), Vector(-15.6, 35.4, 0)), False)
sketch6.addGeometry(Part.LineSegment(Vector(-15.6, 35.4, 0), Vector(-7.6, 35.4, 0)), False)
sketch6.addConstraint(Sketcher.Constraint("Tangent", 0, 2, 1, 1))
sketch6.addConstraint(Sketcher.Constraint("Coincident", 1, 2, 2, 1))
sketch6.addConstraint(Sketcher.Constraint("Tangent", 2, 2, 0, 1))
sketch6.addConstraint(Sketcher.Constraint("Coincident", 3, 1, 4, 1))
sketch6.addConstraint(Sketcher.Constraint("Coincident", 4, 2, 5, 1))
sketch6.addConstraint(Sketcher.Constraint("Coincident", 5, 2, 6, 1))
sketch6.addConstraint(Sketcher.Constraint("Coincident", 6, 2, 3, 2))
sketch6.addConstraint(Sketcher.Constraint("Horizontal", 1))
sketch6.addConstraint(Sketcher.Constraint("Vertical", 2))
sketch6.addConstraint(Sketcher.Constraint("Horizontal", 4))
sketch6.addConstraint(Sketcher.Constraint("Vertical", 5))
sketch6.addConstraint(Sketcher.Constraint("Horizontal", 6))
sketch6.addConstraint(Sketcher.Constraint("PointOnObject", 3, 3, -2))
sketch6.addConstraint(Sketcher.Constraint("Vertical", 3, 1, 6, 2))
sketch6.addConstraint(Sketcher.Constraint("Radius", 0, Q("5.999999 mm")))
sketch6.addConstraint(Sketcher.Constraint("DistanceX", 4, 2, 4, 1, Q("8 mm")))
sketch6.addConstraint(Sketcher.Constraint("Radius", 3, Q("7.65 mm")))
sketch6.addConstraint(Sketcher.Constraint("DistanceX", -1, 1, 0, 3, Q("9.000001 mm")))
sketch6.addConstraint(Sketcher.Constraint("DistanceY", -1, 1, 0, 3, Q("39.000001 mm")))
sketch6.addConstraint(Sketcher.Constraint("DistanceY", -1, 1, 3, 3, Q("35 mm")))
sketch6.addConstraint(Sketcher.Constraint("DistanceY", 5, 1, 5, 2, Q("0.75 mm")))
sketch6.setExpression("Constraints[14]", "Params.sketch6_radius")
sketch6.setExpression("Constraints[15]", "Params.sketch6_width")
sketch6.setExpression("Constraints[16]", "Params.sketch6_radius2")
sketch6.setExpression("Constraints[20]", "Params.sketch6_height")
pocket2 = body9.newObject("PartDesign::Pocket", "Pocket001")
pocket2.Profile = sketch6
pocket2.Type = "ThroughAll"
pocket2.Reversed = True

sketch7 = body9.newObject("Sketcher::SketchObject", "Sketch006")
sketch7.AttachmentSupport = (doc.getObject("XY_Plane008"), [""])
sketch7.MapMode = "FlatFace"
sketch7.AttachmentOffset = App.Placement(Vector(0, 0, 45), App.Rotation())
sketch7.addGeometry(Part.Circle(Vector(-11, 0, 0), Vector(0, 0, 1), 1.6), False)
sketch7.addConstraint(Sketcher.Constraint("PointOnObject", 0, 3, -1))
sketch7.addConstraint(Sketcher.Constraint("Diameter", 0, Q("3.1 mm")))
sketch7.addConstraint(Sketcher.Constraint("DistanceX", 0, 3, -1, 1, Q("11 mm")))
sketch7.setExpression("Constraints[1]", "Params.sketch7_diameter")
pocket3 = body9.newObject("PartDesign::Pocket", "Pocket002")
pocket3.Profile = sketch7
pocket3.setExpression("Length", "Params.pocket3_length")
doc.recompute()

boolean6 = body9.newObject("PartDesign::Boolean", "Boolean005")
boolean6.Type = "Cut"
boolean6.addObjects([body8])

sketch8 = body9.newObject("Sketcher::SketchObject", "Sketch007")
sketch8.AttachmentSupport = (doc.getObject("XY_Plane008"), [""])
sketch8.MapMode = "FlatFace"
sketch8.AttachmentOffset = App.Placement(Vector(0, 0, 45), App.Rotation())
sketch8.addGeometry(Part.Circle(Vector(-11, 0, 0), Vector(0, 0, 1), 3.1), False)
sketch8.addConstraint(Sketcher.Constraint("PointOnObject", 0, 3, -1))
sketch8.addConstraint(Sketcher.Constraint("Diameter", 0, Q("6.2 mm")))
sketch8.addConstraint(Sketcher.Constraint("DistanceX", 0, 3, -1, 1, Q("11 mm")))
sketch8.setExpression("Constraints[1]", "Params.sketch8_diameter")
pocket4 = body9.newObject("PartDesign::Pocket", "Pocket003")
pocket4.Profile = sketch8
pocket4.setExpression("Length", "Params.pocket4_length")

sketch9 = body9.newObject("Sketcher::SketchObject", "Sketch008")
sketch9.AttachmentSupport = (doc.getObject("XY_Plane008"), [""])
sketch9.MapMode = "FlatFace"
sketch9.addGeometry(Part.Circle(Vector(0, 11, 0), Vector(0, 0, 1), 1.6), False)
sketch9.addConstraint(Sketcher.Constraint("PointOnObject", 0, 3, -2))
sketch9.addConstraint(Sketcher.Constraint("Diameter", 0, Q("3.1 mm")))
sketch9.addConstraint(Sketcher.Constraint("DistanceY", -1, 1, 0, 3, Q("11 mm")))
sketch9.setExpression("Constraints[1]", "Params.sketch9_diameter")
pocket5 = body9.newObject("PartDesign::Pocket", "Pocket004")
pocket5.Profile = sketch9
pocket5.setExpression("Length", "Params.pocket5_length")
pocket5.Reversed = True
doc.recompute()

boolean7 = body9.newObject("PartDesign::Boolean", "Boolean006")
boolean7.Type = "Cut"
boolean7.addObjects([body6])

sketch10 = body9.newObject("Sketcher::SketchObject", "Sketch009")
sketch10.AttachmentSupport = (doc.getObject("XY_Plane008"), [""])
sketch10.MapMode = "FlatFace"
sketch10.addGeometry(Part.Circle(Vector(0, 11, 0), Vector(0, 0, 1), 3.1), False)
sketch10.addConstraint(Sketcher.Constraint("PointOnObject", 0, 3, -2))
sketch10.addConstraint(Sketcher.Constraint("Diameter", 0, Q("6.2 mm")))
sketch10.addConstraint(Sketcher.Constraint("DistanceY", -1, 1, 0, 3, Q("11 mm")))
sketch10.setExpression("Constraints[1]", "Params.sketch10_diameter")
pocket6 = body9.newObject("PartDesign::Pocket", "Pocket005")
pocket6.Profile = sketch10
pocket6.setExpression("Length", "Params.pocket6_length")
pocket6.Reversed = True

sketch11 = body9.newObject("Sketcher::SketchObject", "Sketch010")
sketch11.Placement = App.Placement(Vector(11.464466, -11.464466, 0), App.Rotation(Vector(0.707106781, 0.707106781, 0), Vector(0, 0, 0.999999999), Vector(0.707106781, -0.707106781, 0), "ZXY"))
sketch11.addGeometry(Part.Circle(Vector(0, 22.5, 0), Vector(0, 0, 1), 1.6), False)
sketch11.addConstraint(Sketcher.Constraint("PointOnObject", 0, 3, -2))
sketch11.addConstraint(Sketcher.Constraint("Diameter", 0, Q("3.1 mm")))
sketch11.addConstraint(Sketcher.Constraint("DistanceY", -1, 1, 0, 3, Q("22.5 mm")))
sketch11.setExpression("Constraints[1]", "Params.sketch11_diameter")
pocket7 = body9.newObject("PartDesign::Pocket", "Pocket006")
pocket7.Profile = sketch11
pocket7.setExpression("Length", "Params.pocket7_length")
doc.recompute()

boolean8 = body9.newObject("PartDesign::Boolean", "Boolean007")
boolean8.Type = "Cut"
boolean8.addObjects([body4])
doc.recompute()

fillet = body9.newObject("PartDesign::Fillet", "Fillet")
fillet.Base = (boolean8, edges_at(boolean8, [
    (-15, 8.32, 10.375),
    (-15, -7.65, 10),
    (-15, 8.32, 9.625),
    (-15, 0, 34.625),
    (-15, 0, 28.35),
    (-15, -2.825, 29.675),
    (-15, 0, 31),
    (-15, 2.825, 29.675),
    (-15, 0, 35.375),
]))
fillet.setExpression("Radius", "Params.fillet_radius")

doc.recompute()
